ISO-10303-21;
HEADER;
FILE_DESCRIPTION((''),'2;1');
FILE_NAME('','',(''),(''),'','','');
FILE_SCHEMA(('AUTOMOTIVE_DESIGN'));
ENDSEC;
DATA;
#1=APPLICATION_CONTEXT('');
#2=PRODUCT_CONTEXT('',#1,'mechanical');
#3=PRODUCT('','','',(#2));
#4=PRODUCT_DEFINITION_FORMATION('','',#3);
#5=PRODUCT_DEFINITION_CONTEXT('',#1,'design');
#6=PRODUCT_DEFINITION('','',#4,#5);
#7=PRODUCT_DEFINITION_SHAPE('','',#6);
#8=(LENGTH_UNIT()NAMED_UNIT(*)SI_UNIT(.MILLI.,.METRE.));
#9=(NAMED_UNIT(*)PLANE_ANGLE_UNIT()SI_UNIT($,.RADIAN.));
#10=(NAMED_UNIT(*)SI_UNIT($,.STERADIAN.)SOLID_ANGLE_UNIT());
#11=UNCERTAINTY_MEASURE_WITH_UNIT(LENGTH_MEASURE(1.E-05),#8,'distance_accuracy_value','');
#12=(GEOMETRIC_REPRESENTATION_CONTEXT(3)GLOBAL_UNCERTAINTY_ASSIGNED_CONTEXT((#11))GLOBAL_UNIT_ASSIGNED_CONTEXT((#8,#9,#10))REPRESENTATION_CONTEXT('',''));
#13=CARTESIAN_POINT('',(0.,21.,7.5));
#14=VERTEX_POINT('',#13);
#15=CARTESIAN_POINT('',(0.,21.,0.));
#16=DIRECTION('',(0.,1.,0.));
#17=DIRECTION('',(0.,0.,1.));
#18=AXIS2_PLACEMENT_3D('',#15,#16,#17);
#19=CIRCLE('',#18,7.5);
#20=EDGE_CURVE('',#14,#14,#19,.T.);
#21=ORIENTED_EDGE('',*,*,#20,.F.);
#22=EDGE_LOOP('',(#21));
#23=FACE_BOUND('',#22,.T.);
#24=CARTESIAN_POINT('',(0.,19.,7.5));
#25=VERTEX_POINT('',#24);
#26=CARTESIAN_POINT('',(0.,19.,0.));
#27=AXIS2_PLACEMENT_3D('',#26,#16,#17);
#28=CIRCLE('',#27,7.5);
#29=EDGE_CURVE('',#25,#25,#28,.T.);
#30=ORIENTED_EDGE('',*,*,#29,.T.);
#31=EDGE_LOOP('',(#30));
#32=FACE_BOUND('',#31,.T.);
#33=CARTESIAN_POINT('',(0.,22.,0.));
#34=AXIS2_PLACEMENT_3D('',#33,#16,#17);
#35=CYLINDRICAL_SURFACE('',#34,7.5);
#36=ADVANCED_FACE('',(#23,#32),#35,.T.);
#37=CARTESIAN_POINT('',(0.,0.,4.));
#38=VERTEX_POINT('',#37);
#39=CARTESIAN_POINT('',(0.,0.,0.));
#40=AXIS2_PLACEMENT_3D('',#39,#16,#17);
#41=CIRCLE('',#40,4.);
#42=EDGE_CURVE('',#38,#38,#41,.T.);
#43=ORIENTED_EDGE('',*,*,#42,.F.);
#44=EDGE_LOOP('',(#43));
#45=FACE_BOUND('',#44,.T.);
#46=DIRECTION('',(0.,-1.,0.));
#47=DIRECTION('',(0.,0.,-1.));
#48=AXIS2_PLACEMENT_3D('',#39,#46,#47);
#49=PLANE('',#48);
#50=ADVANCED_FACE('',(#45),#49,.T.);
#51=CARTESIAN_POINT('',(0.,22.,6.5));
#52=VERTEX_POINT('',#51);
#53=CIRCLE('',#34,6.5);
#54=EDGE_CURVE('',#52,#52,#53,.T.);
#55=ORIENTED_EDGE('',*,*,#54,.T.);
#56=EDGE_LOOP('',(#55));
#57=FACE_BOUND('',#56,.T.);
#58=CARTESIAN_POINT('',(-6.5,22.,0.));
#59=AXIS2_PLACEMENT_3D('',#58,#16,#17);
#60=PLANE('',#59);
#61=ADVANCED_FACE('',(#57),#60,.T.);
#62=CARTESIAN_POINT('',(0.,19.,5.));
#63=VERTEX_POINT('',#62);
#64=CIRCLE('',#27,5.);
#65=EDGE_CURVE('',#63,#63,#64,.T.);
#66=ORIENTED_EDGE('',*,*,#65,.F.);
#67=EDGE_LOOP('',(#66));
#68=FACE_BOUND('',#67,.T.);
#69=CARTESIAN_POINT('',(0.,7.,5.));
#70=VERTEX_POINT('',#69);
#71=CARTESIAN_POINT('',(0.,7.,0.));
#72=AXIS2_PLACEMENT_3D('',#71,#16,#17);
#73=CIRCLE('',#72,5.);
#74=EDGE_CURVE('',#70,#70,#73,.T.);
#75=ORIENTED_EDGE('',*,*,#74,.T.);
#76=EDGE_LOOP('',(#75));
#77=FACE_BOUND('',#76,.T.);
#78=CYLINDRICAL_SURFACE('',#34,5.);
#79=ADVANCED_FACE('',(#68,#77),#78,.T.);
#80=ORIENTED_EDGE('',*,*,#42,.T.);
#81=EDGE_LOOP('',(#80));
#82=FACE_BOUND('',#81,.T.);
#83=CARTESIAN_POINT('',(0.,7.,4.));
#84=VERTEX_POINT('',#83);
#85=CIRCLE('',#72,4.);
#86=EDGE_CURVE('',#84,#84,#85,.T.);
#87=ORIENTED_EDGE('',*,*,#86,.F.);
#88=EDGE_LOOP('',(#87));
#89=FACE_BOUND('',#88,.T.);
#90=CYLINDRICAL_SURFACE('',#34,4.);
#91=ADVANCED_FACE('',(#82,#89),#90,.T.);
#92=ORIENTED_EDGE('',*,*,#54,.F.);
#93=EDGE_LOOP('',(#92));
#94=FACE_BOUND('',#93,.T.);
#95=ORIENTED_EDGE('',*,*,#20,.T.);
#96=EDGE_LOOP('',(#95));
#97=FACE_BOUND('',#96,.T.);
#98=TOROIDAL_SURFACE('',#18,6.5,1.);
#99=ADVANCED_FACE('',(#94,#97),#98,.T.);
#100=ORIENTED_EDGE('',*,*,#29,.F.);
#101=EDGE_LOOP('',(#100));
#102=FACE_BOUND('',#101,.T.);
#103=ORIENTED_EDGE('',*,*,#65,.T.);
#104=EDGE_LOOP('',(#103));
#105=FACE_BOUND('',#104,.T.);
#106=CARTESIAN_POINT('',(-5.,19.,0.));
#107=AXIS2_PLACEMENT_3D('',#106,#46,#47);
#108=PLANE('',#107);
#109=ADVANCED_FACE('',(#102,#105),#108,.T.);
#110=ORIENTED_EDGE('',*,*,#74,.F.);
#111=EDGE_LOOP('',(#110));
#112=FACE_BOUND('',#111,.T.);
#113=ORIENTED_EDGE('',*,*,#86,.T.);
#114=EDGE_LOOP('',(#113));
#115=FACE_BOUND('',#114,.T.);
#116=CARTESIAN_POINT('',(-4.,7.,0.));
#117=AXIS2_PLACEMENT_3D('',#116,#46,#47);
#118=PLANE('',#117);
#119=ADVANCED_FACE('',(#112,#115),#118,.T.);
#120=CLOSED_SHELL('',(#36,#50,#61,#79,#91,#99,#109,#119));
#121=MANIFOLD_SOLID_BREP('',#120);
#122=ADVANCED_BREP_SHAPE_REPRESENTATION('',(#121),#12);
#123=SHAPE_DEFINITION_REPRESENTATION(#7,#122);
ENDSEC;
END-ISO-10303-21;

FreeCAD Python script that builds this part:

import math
import FreeCAD as App
import Part
import Sketcher
from FreeCAD import Vector

doc = App.newDocument("Part")
params = doc.addObject("Spreadsheet::Sheet", "Params")
for row, (alias, value) in enumerate([
    ("sketch1_radius", "1 mm"),
    ("sketch1_width", "4 mm"),
    ("sketch1_width2", "1 mm"),
    ("sketch1_height", "22 mm"),
    ("sketch1_height2", "2 mm"),
    ("revolution_angle", "360 deg"),
], start=1):
    params.set(f"A{row}", alias)
    params.set(f"B{row}", "=" + value)
    params.setAlias(f"B{row}", alias)

body = doc.addObject("PartDesign::Body", "Body")

# Sketch on XY plane
sketch1 = body.newObject("Sketcher::SketchObject", "Sketch")
sketch1.AttachmentSupport = (doc.getObject("XY_Plane"), [""])
sketch1.MapMode = "FlatFace"
sketch1.addGeometry([
    Part.LineSegment(Vector(-4, 0, 0), Vector(0, 0, 0)),  # 0
    Part.LineSegment(Vector(0, 0, 0), Vector(0, 22, 0)),  # 1
    Part.LineSegment(Vector(0, 22, 0), Vector(-6.5, 22, 0)),  # 2
    Part.ArcOfCircle(Part.Circle(Vector(-6.5, 21, 0), Vector(0, 0, 1), 1), math.radians(90), math.radians(180)),  # 3
    Part.LineSegment(Vector(-7.5, 21, 0), Vector(-7.5, 19, 0)),  # 4
    Part.LineSegment(Vector(-7.5, 19, 0), Vector(-5, 19, 0)),  # 5
    Part.LineSegment(Vector(-5, 19, 0), Vector(-5, 7, 0)),  # 6
    Part.LineSegment(Vector(-5, 7, 0), Vector(-4, 7, 0)),  # 7
    Part.LineSegment(Vector(-4, 7, 0), Vector(-4, 0, 0)),  # 8
], False)
sketch1.addConstraint([
    Sketcher.Constraint("Coincident", 0, 2, 1, 1),
    Sketcher.Constraint("Coincident", 1, 2, 2, 1),
    Sketcher.Constraint("Tangent", 2, 2, 3, 1),
    Sketcher.Constraint("Tangent", 3, 2, 4, 1),
    Sketcher.Constraint("Coincident", 4, 2, 5, 1),
    Sketcher.Constraint("Coincident", 5, 2, 6, 1),
    Sketcher.Constraint("Coincident", 6, 2, 7, 1),
    Sketcher.Constraint("Coincident", 7, 2, 8, 1),
    Sketcher.Constraint("Coincident", 8, 2, 0, 1),
    Sketcher.Constraint("Horizontal", 0),
    Sketcher.Constraint("Vertical", 1),
    Sketcher.Constraint("Horizontal", 2),
    Sketcher.Constraint("Vertical", 4),
    Sketcher.Constraint("Horizontal", 5),
    Sketcher.Constraint("Vertical", 6),
    Sketcher.Constraint("Horizontal", 7),
    Sketcher.Constraint("Vertical", 8),
    Sketcher.Constraint("Coincident", 0, 2, -1, 1),
    Sketcher.Constraint("Radius", 3, 1.0),
    Sketcher.Constraint("DistanceX", 0, 1, 0, 2, 4.0),
    Sketcher.Constraint("DistanceX", 7, 1, 7, 2, 1.0),
    Sketcher.Constraint("DistanceY", 1, 1, 1, 2, 22.0),
    Sketcher.Constraint("DistanceY", 4, 2, 4, 1, 2.0),
    Sketcher.Constraint("DistanceY", 6, 2, 6, 1, 12.0),
    Sketcher.Constraint("DistanceX", 2, 2, 2, 1, 6.5),
])
sketch1.setExpression("Constraints[18]", "Params.sketch1_radius")
sketch1.setExpression("Constraints[19]", "Params.sketch1_width")
sketch1.setExpression("Constraints[20]", "Params.sketch1_width2")
sketch1.setExpression("Constraints[21]", "Params.sketch1_height")
sketch1.setExpression("Constraints[22]", "Params.sketch1_height2")
revolution = body.newObject("PartDesign::Revolution", "Revolution")
revolution.Profile = sketch1
revolution.ReferenceAxis = (sketch1, ["V_Axis"])
revolution.setExpression("Angle", "Params.revolution_angle")

doc.recompute()
